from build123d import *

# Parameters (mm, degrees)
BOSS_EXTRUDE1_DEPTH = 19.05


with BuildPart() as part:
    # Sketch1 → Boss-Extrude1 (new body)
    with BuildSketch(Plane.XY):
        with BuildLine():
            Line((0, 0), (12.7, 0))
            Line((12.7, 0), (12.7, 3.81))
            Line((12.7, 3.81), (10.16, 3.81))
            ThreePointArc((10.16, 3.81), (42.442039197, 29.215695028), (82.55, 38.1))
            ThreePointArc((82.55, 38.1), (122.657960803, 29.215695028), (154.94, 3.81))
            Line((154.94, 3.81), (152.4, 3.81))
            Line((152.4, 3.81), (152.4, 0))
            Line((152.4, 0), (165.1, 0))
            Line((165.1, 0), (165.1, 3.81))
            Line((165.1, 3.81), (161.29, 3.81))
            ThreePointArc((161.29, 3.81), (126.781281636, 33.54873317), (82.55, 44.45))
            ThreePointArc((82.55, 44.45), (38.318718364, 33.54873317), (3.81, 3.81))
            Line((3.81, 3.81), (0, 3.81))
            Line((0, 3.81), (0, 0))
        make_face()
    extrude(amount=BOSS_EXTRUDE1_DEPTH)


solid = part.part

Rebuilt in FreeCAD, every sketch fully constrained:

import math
import FreeCAD as App
import Part
import Sketcher
Q = App.Units.Quantity

doc = App.newDocument("Part")
body = doc.addObject("PartDesign::Body", "Body")

sketch1 = body.newObject("Sketcher::SketchObject", "Sketch")
sketch1.AttachmentSupport = (doc.getObject("XY_Plane"), [""])
sketch1.MapMode = "FlatFace"
sketch1.addGeometry(Part.LineSegment(App.Vector(0, 0, 0), App.Vector(12.7, 0, 0)), False)
sketch1.addGeometry(Part.LineSegment(App.Vector(12.7, 0, 0), App.Vector(12.7, 3.81, 0)), False)
sketch1.addGeometry(Part.LineSegment(App.Vector(12.7, 3.81, 0), App.Vector(10.16, 3.81, 0)), False)
sketch1.addGeometry(Part.ArcOfCircle(Part.Circle(App.Vector(81.959722, -54.210524, 0), App.Vector(0, 0, 1), 92.312411), math.radians(89.633628), math.radians(141.058724)), False)
sketch1.addGeometry(Part.ArcOfCircle(Part.Circle(App.Vector(83.140278, -54.210524, 0), App.Vector(0, 0, 1), 92.312411), math.radians(38.941276), math.radians(90.366372)), False)
sketch1.addGeometry(Part.LineSegment(App.Vector(154.94, 3.81, 0), App.Vector(152.4, 3.81, 0)), False)
sketch1.addGeometry(Part.LineSegment(App.Vector(152.4, 3.81, 0), App.Vector(152.4, 0, 0)), False)
sketch1.addGeometry(Part.LineSegment(App.Vector(152.4, 0, 0), App.Vector(165.1, 0, 0)), False)
sketch1.addGeometry(Part.LineSegment(App.Vector(165.1, 0, 0), App.Vector(165.1, 3.81, 0)), False)
sketch1.addGeometry(Part.LineSegment(App.Vector(165.1, 3.81, 0), App.Vector(161.29, 3.81, 0)), False)
sketch1.addGeometry(Part.ArcOfCircle(Part.Circle(App.Vector(81.882169, -53.443297, 0), App.Vector(0, 0, 1), 97.895575), math.radians(35.791723), math.radians(89.609133)), False)
sketch1.addGeometry(Part.ArcOfCircle(Part.Circle(App.Vector(83.217831, -53.443297, 0), App.Vector(0, 0, 1), 97.895575), math.radians(90.390867), math.radians(144.208277)), False)
sketch1.addGeometry(Part.LineSegment(App.Vector(3.81, 3.81, 0), App.Vector(0, 3.81, 0)), False)
sketch1.addGeometry(Part.LineSegment(App.Vector(0, 3.81, 0), App.Vector(0, 0, 0)), False)
sketch1.addConstraint(Sketcher.Constraint("Coincident", 0, 2, 1, 1))
sketch1.addConstraint(Sketcher.Constraint("Coincident", 1, 2, 2, 1))
sketch1.addConstraint(Sketcher.Constraint("Coincident", 2, 2, 3, 2))
sketch1.addConstraint(Sketcher.Constraint("Coincident", 3, 1, 4, 2))
sketch1.addConstraint(Sketcher.Constraint("Coincident", 4, 1, 5, 1))
sketch1.addConstraint(Sketcher.Constraint("Coincident", 5, 2, 6, 1))
sketch1.addConstraint(Sketcher.Constraint("Coincident", 6, 2, 7, 1))
sketch1.addConstraint(Sketcher.Constraint("Coincident", 7, 2, 8, 1))
sketch1.addConstraint(Sketcher.Constraint("Coincident", 8, 2, 9, 1))
sketch1.addConstraint(Sketcher.Constraint("Coincident", 9, 2, 10, 1))
sketch1.addConstraint(Sketcher.Constraint("Coincident", 10, 2, 11, 1))
sketch1.addConstraint(Sketcher.Constraint("Coincident", 11, 2, 12, 1))
sketch1.addConstraint(Sketcher.Constraint("Coincident", 12, 2, 13, 1))
sketch1.addConstraint(Sketcher.Constraint("Coincident", 13, 2, 0, 1))
sketch1.addConstraint(Sketcher.Constraint("Horizontal", 0))
sketch1.addConstraint(Sketcher.Constraint("Vertical", 1))
sketch1.addConstraint(Sketcher.Constraint("Horizontal", 2))
sketch1.addConstraint(Sketcher.Constraint("Horizontal", 5))
sketch1.addConstraint(Sketcher.Constraint("Vertical", 6))
sketch1.addConstraint(Sketcher.Constraint("Horizontal", 7))
sketch1.addConstraint(Sketcher.Constraint("Vertical", 8))
sketch1.addConstraint(Sketcher.Constraint("Horizontal", 9))
sketch1.addConstraint(Sketcher.Constraint("Horizontal", 12))
sketch1.addConstraint(Sketcher.Constraint("Vertical", 13))
sketch1.addConstraint(Sketcher.Constraint("Coincident", 13, 2, -1, 1))
sketch1.addConstraint(Sketcher.Constraint("Equal", 3, 4))
sketch1.addConstraint(Sketcher.Constraint("Equal", 10, 11))
sketch1.addConstraint(Sketcher.Constraint("PointOnObject", 6, 2, -1))
sketch1.addConstraint(Sketcher.Constraint("Horizontal", 3, 3, 4, 3))
sketch1.addConstraint(Sketcher.Constraint("Horizontal", 10, 3, 11, 3))
sketch1.addConstraint(Sketcher.Constraint("Horizontal", 2, 2, 4, 1))
sketch1.addConstraint(Sketcher.Constraint("Horizontal", 5, 2, 8, 2))
sketch1.addConstraint(Sketcher.Constraint("Horizontal", 9, 2, 11, 2))
sketch1.addConstraint(Sketcher.Constraint("Vertical", 3, 1, 10, 2))
sketch1.addConstraint(Sketcher.Constraint("Equal", 2, 5))
sketch1.addConstraint(Sketcher.Constraint("Equal", 0, 7))
sketch1.addConstraint(Sketcher.Constraint("Equal", 12, 1))
sketch1.addConstraint(Sketcher.Constraint("DistanceX", 0, 1, 0, 2, Q("0.5 in")))
sketch1.addConstraint(Sketcher.Constraint("DistanceX", 2, 2, 2, 1, Q("0.1 in")))
sketch1.addConstraint(Sketcher.Constraint("DistanceX", -1, 1, 5, 2, Q("6 in")))
sketch1.addConstraint(Sketcher.Constraint("DistanceX", 9, 2, 9, 1, Q("0.15 in")))
sketch1.addConstraint(Sketcher.Constraint("DistanceY", -1, 1, 3, 1, Q("1.5 in")))
sketch1.addConstraint(Sketcher.Constraint("DistanceY", 5, 2, 10, 2, Q("1.6 in")))
sketch1.addConstraint(Sketcher.Constraint("Radius", 3, 92.312411))
sketch1.addConstraint(Sketcher.Constraint("Radius", 10, 97.895575))
pad1 = body.newObject("PartDesign::Pad", "Pad")
pad1.Profile = sketch1
pad1.Length = Q("0.75 in")

doc.recompute()
